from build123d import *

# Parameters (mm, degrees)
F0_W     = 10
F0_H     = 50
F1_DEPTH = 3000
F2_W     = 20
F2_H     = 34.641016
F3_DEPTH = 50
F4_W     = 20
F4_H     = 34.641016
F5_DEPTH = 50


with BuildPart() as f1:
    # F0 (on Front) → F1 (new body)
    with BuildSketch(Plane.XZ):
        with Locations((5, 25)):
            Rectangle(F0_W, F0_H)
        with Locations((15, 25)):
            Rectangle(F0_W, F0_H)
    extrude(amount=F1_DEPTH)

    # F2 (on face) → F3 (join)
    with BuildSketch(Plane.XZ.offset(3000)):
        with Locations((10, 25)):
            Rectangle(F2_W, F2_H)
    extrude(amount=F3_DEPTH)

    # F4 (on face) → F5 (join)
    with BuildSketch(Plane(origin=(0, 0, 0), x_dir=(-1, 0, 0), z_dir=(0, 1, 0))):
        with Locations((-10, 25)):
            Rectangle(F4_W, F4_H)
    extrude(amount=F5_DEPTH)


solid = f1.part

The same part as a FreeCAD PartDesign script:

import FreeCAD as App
import Part
import Sketcher
from FreeCAD import Vector
Q = App.Units.Quantity


def add_polygon(sketch, points):
    """Adds a closed chain of lines whose ends are joined by coincident constraints."""
    first, n = sketch.GeometryCount, len(points)
    for a, b in zip(points, points[1:] + points[:1]):
        sketch.addGeometry(Part.LineSegment(App.Vector(*a, 0), App.Vector(*b, 0)), False)
    for i in range(n):
        sketch.addConstraint(Sketcher.Constraint("Coincident", first + i, 2, first + (i + 1) % n, 1))

doc = App.newDocument("Part")
body = doc.addObject("PartDesign::Body", "Body")

# Sketch on XZ plane
sketch1 = doc.addObject("Sketcher::SketchObject", "Sketch")
body.addObject(sketch1)
sketch1.AttachmentSupport = (doc.XZ_Plane, [""])
sketch1.MapMode = "FlatFace"
add_polygon(sketch1, [(0, 50), (0, 0), (20, 0), (20, 50)])  # lines 0-3
sketch1.addConstraint([
    Sketcher.Constraint("Vertical", 0),
    Sketcher.Constraint("Horizontal", 1),
    Sketcher.Constraint("Vertical", 2),
    Sketcher.Constraint("Horizontal", 3),
    Sketcher.Constraint("Coincident", 0, 2, -1, 1),
    Sketcher.Constraint("DistanceX", 1, 1, 1, 2, Q("20 mm")),
    Sketcher.Constraint("DistanceY", 0, 2, 0, 1, Q("50 mm")),
])
pad1 = doc.addObject("PartDesign::Pad", "Pad")
body.addObject(pad1)
pad1.Profile = sketch1
pad1.Length = 3000

# Sketch on XZ plane
sketch2 = doc.addObject("Sketcher::SketchObject", "Sketch001")
body.addObject(sketch2)
sketch2.AttachmentSupport = (doc.XZ_Plane, [""])
sketch2.MapMode = "FlatFace"
sketch2.AttachmentOffset = App.Placement(Vector(0, 0, 3000), App.Rotation())
add_polygon(sketch2, [(0, 42), (0, 8), (20, 8), (20, 42)])  # lines 0-3
sketch2.addConstraint([
    Sketcher.Constraint("Vertical", 0),
    Sketcher.Constraint("Horizontal", 1),
    Sketcher.Constraint("Vertical", 2),
    Sketcher.Constraint("Horizontal", 3),
    Sketcher.Constraint("PointOnObject", 0, 2, -2),
    Sketcher.Constraint("DistanceX", 1, 1, 1, 2, Q("20 mm")),
    Sketcher.Constraint("DistanceY", 0, 2, 0, 1, Q("34.641016 mm")),
    Sketcher.Constraint("DistanceY", -1, 1, 0, 2, Q("7.679492 mm")),
])
pad2 = doc.addObject("PartDesign::Pad", "Pad001")
body.addObject(pad2)
pad2.Profile = sketch2
pad2.Length = 50

# Sketch on XZ plane
sketch3 = doc.addObject("Sketcher::SketchObject", "Sketch002")
body.addObject(sketch3)
sketch3.AttachmentSupport = (doc.XZ_Plane, [""])
sketch3.MapMode = "FlatFace"
add_polygon(sketch3, [(20, 42), (20, 8), (0, 8), (0, 42)])  # lines 0-3
sketch3.addConstraint([
    Sketcher.Constraint("Vertical", 0),
    Sketcher.Constraint("Horizontal", 1),
    Sketcher.Constraint("Vertical", 2),
    Sketcher.Constraint("Horizontal", 3),
    Sketcher.Constraint("PointOnObject", 1, 2, -2),
    Sketcher.Constraint("DistanceX", 1, 2, 1, 1, Q("20 mm")),
    Sketcher.Constraint("DistanceY", 0, 2, 0, 1, Q("34.641016 mm")),
    Sketcher.Constraint("DistanceY", -1, 1, 0, 2, Q("7.679492 mm")),
])
pad3 = doc.addObject("PartDesign::Pad", "Pad002")
body.addObject(pad3)
pad3.Profile = sketch3
pad3.Length = 50
pad3.Reversed = True

doc.recompute()
